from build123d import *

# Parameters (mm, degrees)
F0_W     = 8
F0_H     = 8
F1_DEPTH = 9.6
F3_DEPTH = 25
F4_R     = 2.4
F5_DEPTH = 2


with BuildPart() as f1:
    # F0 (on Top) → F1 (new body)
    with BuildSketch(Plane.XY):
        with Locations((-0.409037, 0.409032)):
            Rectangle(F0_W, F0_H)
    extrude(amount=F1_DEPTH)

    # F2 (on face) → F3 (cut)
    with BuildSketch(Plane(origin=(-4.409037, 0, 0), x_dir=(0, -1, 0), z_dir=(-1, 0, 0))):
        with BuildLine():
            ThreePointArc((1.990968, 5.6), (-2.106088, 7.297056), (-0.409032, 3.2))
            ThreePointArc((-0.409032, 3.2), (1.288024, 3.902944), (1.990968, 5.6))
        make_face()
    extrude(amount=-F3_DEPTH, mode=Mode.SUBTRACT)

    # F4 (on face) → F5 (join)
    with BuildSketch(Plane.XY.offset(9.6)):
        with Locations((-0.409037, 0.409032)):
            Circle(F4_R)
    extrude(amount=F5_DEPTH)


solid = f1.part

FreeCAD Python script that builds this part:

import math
import FreeCAD as App
import Part
import Sketcher

V = App.Vector

doc = App.newDocument("Part")
body = doc.addObject("PartDesign::Body", "Body")

# Sketch on XY plane
sketch1 = body.newObject("Sketcher::SketchObject", "Sketch")
sketch1.AttachmentSupport = (doc.getObject("XY_Plane"), [""])
sketch1.MapMode = "FlatFace"
sketch1.addGeometry([
    Part.LineSegment(V(-4.409037, 4.409032, 0), V(-4.409037, -3.590968, 0)),
    Part.LineSegment(V(-4.409037, -3.590968, 0), V(3.590963, -3.590968, 0)),
    Part.LineSegment(V(3.590963, -3.590968, 0), V(3.590963, 4.409032, 0)),
    Part.LineSegment(V(3.590963, 4.409032, 0), V(-4.409037, 4.409032, 0)),
], False)
sketch1.addConstraint([
    Sketcher.Constraint("Coincident", 0, 2, 1, 1),
    Sketcher.Constraint("Coincident", 1, 2, 2, 1),
    Sketcher.Constraint("Coincident", 2, 2, 3, 1),
    Sketcher.Constraint("Coincident", 3, 2, 0, 1),
    Sketcher.Constraint("Vertical", 0),
    Sketcher.Constraint("Horizontal", 1),
    Sketcher.Constraint("Vertical", 2),
    Sketcher.Constraint("Horizontal", 3),
    Sketcher.Constraint("Equal", 3, 0),
    Sketcher.Constraint("DistanceX", 1, 1, 1, 2, 8.0),
    Sketcher.Constraint("DistanceY", 0, 2, -1, 1, 3.590968),
    Sketcher.Constraint("DistanceX", 0, 2, -1, 1, 4.409037),
])
pad1 = body.newObject("PartDesign::Pad", "Pad")
pad1.Profile = sketch1
pad1.Length = 9.6

# Sketch on YZ plane
sketch2 = body.newObject("Sketcher::SketchObject", "Sketch001")
sketch2.AttachmentSupport = (doc.getObject("YZ_Plane"), [""])
sketch2.MapMode = "FlatFace"
sketch2.AttachmentOffset = App.Placement(V(0, 0, -4.409037), App.Rotation())
sketch2.addGeometry([
    Part.ArcOfCircle(Part.Circle(V(0.409032, 5.6, 0), V(0, 0, 1), 2.4), math.radians(-89.999996), math.radians(179.999996)),
    Part.ArcOfCircle(Part.Circle(V(0.409033, 5.600001, 0), V(0, 0, 1), 2.400001), math.radians(-179.999978), math.radians(-90.000022)),
], False)
sketch2.addConstraint([
    Sketcher.Constraint("Tangent", 0, 1, 1, 2),
    Sketcher.Constraint("Coincident", 1, 1, 0, 2),
    Sketcher.Constraint("Horizontal", 0, 3, 1, 1),
    Sketcher.Constraint("Vertical", 1, 3, 0, 1),
    Sketcher.Constraint("Radius", 0, 2.4),
    Sketcher.Constraint("DistanceY", -1, 1, 0, 3, 5.6),
    Sketcher.Constraint("DistanceX", -1, 1, 0, 3, 0.409032),
])
pocket1 = body.newObject("PartDesign::Pocket", "Pocket")
pocket1.Profile = sketch2
pocket1.Length = 25
pocket1.Reversed = True

# Sketch on XY plane
sketch3 = body.newObject("Sketcher::SketchObject", "Sketch002")
sketch3.AttachmentSupport = (doc.getObject("XY_Plane"), [""])
sketch3.MapMode = "FlatFace"
sketch3.AttachmentOffset = App.Placement(V(0, 0, 9.6), App.Rotation())
sketch3.addGeometry(Part.Circle(V(-0.409037, 0.409032, 0), V(0, 0, 1), 2.4), False)
sketch3.addConstraint([
    Sketcher.Constraint("Diameter", 0, 4.8),
    Sketcher.Constraint("DistanceX", 0, 3, -1, 1, 0.409037),
    Sketcher.Constraint("DistanceY", -1, 1, 0, 3, 0.409032),
])
pad2 = body.newObject("PartDesign::Pad", "Pad001")
pad2.Profile = sketch3
pad2.Length = 2

doc.recompute()
